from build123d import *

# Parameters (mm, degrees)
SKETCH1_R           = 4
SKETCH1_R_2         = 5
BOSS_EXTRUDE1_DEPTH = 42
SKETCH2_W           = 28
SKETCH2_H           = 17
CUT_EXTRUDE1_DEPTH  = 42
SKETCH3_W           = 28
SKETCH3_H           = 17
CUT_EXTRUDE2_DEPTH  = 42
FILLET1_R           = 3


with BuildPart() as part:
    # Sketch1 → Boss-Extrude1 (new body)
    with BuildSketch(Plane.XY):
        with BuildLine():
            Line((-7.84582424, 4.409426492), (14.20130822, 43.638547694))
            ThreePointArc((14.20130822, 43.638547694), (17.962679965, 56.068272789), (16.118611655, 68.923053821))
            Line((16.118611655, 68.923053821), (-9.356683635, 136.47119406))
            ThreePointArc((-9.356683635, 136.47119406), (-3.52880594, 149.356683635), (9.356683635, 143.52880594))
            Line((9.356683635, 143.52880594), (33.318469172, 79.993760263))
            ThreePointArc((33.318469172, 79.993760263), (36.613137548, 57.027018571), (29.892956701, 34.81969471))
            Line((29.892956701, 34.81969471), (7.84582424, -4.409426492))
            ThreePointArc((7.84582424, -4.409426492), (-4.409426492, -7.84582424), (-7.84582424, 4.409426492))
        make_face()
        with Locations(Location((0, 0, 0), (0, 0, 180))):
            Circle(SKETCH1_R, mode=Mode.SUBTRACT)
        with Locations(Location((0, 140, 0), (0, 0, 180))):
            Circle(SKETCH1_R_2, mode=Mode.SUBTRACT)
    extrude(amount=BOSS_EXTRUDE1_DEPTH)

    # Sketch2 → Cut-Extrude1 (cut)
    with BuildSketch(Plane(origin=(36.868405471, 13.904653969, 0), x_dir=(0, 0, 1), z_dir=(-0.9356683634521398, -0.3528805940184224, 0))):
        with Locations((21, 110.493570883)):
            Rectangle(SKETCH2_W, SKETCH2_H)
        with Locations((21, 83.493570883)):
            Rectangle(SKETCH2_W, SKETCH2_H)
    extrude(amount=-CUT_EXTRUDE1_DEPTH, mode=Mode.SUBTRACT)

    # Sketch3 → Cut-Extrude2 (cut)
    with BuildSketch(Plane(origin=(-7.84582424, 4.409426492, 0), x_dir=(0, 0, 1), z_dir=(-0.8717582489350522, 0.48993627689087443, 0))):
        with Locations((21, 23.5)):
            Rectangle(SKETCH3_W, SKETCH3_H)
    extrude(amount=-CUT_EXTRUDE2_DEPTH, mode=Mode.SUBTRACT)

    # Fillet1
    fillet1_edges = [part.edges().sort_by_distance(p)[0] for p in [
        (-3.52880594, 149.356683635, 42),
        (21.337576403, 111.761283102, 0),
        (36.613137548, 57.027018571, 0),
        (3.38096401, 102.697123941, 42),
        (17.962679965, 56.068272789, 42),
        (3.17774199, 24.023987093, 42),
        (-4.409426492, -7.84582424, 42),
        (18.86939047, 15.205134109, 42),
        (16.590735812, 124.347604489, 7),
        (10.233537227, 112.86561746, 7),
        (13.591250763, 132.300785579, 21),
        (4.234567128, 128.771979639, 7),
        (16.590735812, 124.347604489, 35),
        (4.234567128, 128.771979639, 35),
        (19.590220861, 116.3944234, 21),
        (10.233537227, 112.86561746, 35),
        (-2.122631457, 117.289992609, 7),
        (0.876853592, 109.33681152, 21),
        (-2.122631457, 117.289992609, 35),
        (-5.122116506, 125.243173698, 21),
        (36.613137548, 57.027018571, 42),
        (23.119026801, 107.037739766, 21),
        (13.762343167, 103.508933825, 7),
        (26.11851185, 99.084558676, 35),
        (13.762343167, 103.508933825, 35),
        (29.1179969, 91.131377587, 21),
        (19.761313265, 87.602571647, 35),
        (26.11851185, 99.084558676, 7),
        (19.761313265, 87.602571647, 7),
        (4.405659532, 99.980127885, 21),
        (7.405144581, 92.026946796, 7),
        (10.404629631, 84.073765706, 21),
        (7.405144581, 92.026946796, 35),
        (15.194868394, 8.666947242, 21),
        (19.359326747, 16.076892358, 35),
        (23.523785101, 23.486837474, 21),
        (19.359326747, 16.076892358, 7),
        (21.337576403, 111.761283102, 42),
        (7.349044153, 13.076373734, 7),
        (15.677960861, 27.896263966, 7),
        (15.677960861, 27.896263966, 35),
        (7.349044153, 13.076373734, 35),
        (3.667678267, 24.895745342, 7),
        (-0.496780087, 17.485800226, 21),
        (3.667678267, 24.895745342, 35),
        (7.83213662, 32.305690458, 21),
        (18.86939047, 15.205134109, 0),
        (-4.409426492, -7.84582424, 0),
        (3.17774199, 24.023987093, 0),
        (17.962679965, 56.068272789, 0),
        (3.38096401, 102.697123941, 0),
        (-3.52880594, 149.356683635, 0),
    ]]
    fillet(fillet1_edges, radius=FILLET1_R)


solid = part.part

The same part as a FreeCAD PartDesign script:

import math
import FreeCAD as App
import Part
import Sketcher

V = App.Vector
Q = App.Units.Quantity


def edges_at(feature, points):
    """Names of the edges that pass closest to the given points."""
    edges = feature.Shape.Edges
    near = lambda p: min(range(len(edges)), key=lambda i: edges[i].distToShape(Part.Vertex(*p))[0])
    return sorted({f"Edge{near(p) + 1}" for p in points})

doc = App.newDocument("Part")
body = doc.addObject("PartDesign::Body", "Body")

sketch1 = body.newObject("Sketcher::SketchObject", "Sketch")
sketch1.AttachmentSupport = (doc.getObject("XY_Plane"), [""])
sketch1.MapMode = "FlatFace"
sketch1.addGeometry([
    Part.LineSegment(V(14.2, 43.6, 0), V(-7.8, 4.4, 0)),
    Part.ArcOfCircle(Part.Circle(V(0, 0, 0), V(0, 0, 1), 9), math.radians(151), math.radians(331)),
    Part.LineSegment(V(7.8, -4.4, 0), V(29.9, 34.8, 0)),
    Part.ArcOfCircle(Part.Circle(V(-16.8, 61.1, 0), V(0, 0, 1), 53.6), math.radians(-29), math.radians(21)),
    Part.LineSegment(V(33.3, 80, 0), V(9.4, 143.5, 0)),
    Part.ArcOfCircle(Part.Circle(V(0, 140, 0), V(0, 0, 1), 10), math.radians(21), math.radians(201)),
    Part.LineSegment(V(-9.4, 136.5, 0), V(16.1, 68.9, 0)),
    Part.ArcOfCircle(Part.Circle(V(-12, 58.3, 0), V(0, 0, 1), 30), math.radians(-29), math.radians(21)),
    Part.Circle(V(0, 0, 0), V(0, 0, 1), 4),
    Part.Circle(V(0, 140, 0), V(0, 0, 1), 5),
], False)
sketch1.addConstraint([
    Sketcher.Constraint("Tangent", 0, 2, 1, 1),
    Sketcher.Constraint("Tangent", 1, 2, 2, 1),
    Sketcher.Constraint("Tangent", 2, 2, 3, 1),
    Sketcher.Constraint("Tangent", 3, 2, 4, 1),
    Sketcher.Constraint("Tangent", 4, 2, 5, 1),
    Sketcher.Constraint("Tangent", 5, 2, 6, 1),
    Sketcher.Constraint("Tangent", 6, 2, 7, 2),
    Sketcher.Constraint("Tangent", 7, 1, 0, 1),
    Sketcher.Constraint("Coincident", 1, 3, -1, 1),
    Sketcher.Constraint("Coincident", 8, 3, -1, 1),
    Sketcher.Constraint("Coincident", 9, 3, 5, 3),
    Sketcher.Constraint("PointOnObject", 5, 3, -2),
    Sketcher.Constraint("Parallel", 0, 2),
    Sketcher.Constraint("Parallel", 4, 6),
    Sketcher.Constraint("Equal", 0, 2),
    Sketcher.Constraint("Diameter", 8, Q("8 mm")),
    Sketcher.Constraint("Diameter", 9, Q("10 mm")),
    Sketcher.Constraint("Radius", 1, Q("9 mm")),
    Sketcher.Constraint("Radius", 5, Q("10 mm")),
    Sketcher.Constraint("Radius", 7, Q("30 mm")),
    Sketcher.Constraint("Distance", 0, Q("45 mm")),
    Sketcher.Constraint("DistanceY", -1, 1, 5, 3, Q("140 mm")),
    Sketcher.Constraint("Radius", 3, Q("53.59891 mm")),
])
pad1 = body.newObject("PartDesign::Pad", "Pad")
pad1.Profile = sketch1
pad1.Length = 42

sketch2 = body.newObject("Sketcher::SketchObject", "Sketch001")
sketch2.Placement = App.Placement(V(36.868405, 13.904654, 0), App.Rotation(V(0, 0, 1), V(-0.352880594, 0.935668363, 0), V(-0.935668363, -0.352880594, 0), "ZXY"))
sketch2.addGeometry([
    Part.LineSegment(V(7, 119, 0), V(7, 102, 0)),
    Part.LineSegment(V(7, 102, 0), V(35, 102, 0)),
    Part.LineSegment(V(35, 102, 0), V(35, 119, 0)),
    Part.LineSegment(V(35, 119, 0), V(7, 119, 0)),
    Part.LineSegment(V(7, 92, 0), V(7, 75, 0)),
    Part.LineSegment(V(7, 75, 0), V(35, 75, 0)),
    Part.LineSegment(V(35, 75, 0), V(35, 92, 0)),
    Part.LineSegment(V(35, 92, 0), V(7, 92, 0)),
], False)
sketch2.addConstraint([
    Sketcher.Constraint("Coincident", 0, 2, 1, 1),
    Sketcher.Constraint("Coincident", 1, 2, 2, 1),
    Sketcher.Constraint("Coincident", 2, 2, 3, 1),
    Sketcher.Constraint("Coincident", 3, 2, 0, 1),
    Sketcher.Constraint("Coincident", 4, 2, 5, 1),
    Sketcher.Constraint("Coincident", 5, 2, 6, 1),
    Sketcher.Constraint("Coincident", 6, 2, 7, 1),
    Sketcher.Constraint("Coincident", 7, 2, 4, 1),
    Sketcher.Constraint("Vertical", 0),
    Sketcher.Constraint("Horizontal", 1),
    Sketcher.Constraint("Vertical", 2),
    Sketcher.Constraint("Horizontal", 3),
    Sketcher.Constraint("Vertical", 4),
    Sketcher.Constraint("Horizontal", 5),
    Sketcher.Constraint("Vertical", 6),
    Sketcher.Constraint("Horizontal", 7),
    Sketcher.Constraint("Vertical", 3, 2, 4, 2),
    Sketcher.Constraint("Vertical", 2, 2, 5, 2),
    Sketcher.Constraint("Equal", 2, 4),
    Sketcher.Constraint("DistanceX", 1, 1, 1, 2, Q("28 mm")),
    Sketcher.Constraint("DistanceY", 0, 2, 0, 1, Q("17 mm")),
    Sketcher.Constraint("DistanceX", -1, 1, 0, 2, Q("7 mm")),
    Sketcher.Constraint("DistanceY", 4, 2, 0, 2, Q("27 mm")),
    Sketcher.Constraint("DistanceY", -1, 1, 0, 2, Q("101.993571 mm")),
])
pocket1 = body.newObject("PartDesign::Pocket", "Pocket")
pocket1.Profile = sketch2
pocket1.Length = 42

sketch3 = body.newObject("Sketcher::SketchObject", "Sketch002")
sketch3.Placement = App.Placement(V(-7.845824, 4.409426, 0), App.Rotation(V(0, 0, 1), V(0.489936277, 0.871758249, 0), V(-0.871758249, 0.489936277, 0), "ZXY"))
sketch3.addGeometry([
    Part.LineSegment(V(7, 32, 0), V(7, 15, 0)),
    Part.LineSegment(V(7, 15, 0), V(35, 15, 0)),
    Part.LineSegment(V(35, 15, 0), V(35, 32, 0)),
    Part.LineSegment(V(35, 32, 0), V(7, 32, 0)),
], False)
sketch3.addConstraint([
    Sketcher.Constraint("Coincident", 0, 2, 1, 1),
    Sketcher.Constraint("Coincident", 1, 2, 2, 1),
    Sketcher.Constraint("Coincident", 2, 2, 3, 1),
    Sketcher.Constraint("Coincident", 3, 2, 0, 1),
    Sketcher.Constraint("Vertical", 0),
    Sketcher.Constraint("Horizontal", 1),
    Sketcher.Constraint("Vertical", 2),
    Sketcher.Constraint("Horizontal", 3),
    Sketcher.Constraint("DistanceX", 1, 1, 1, 2, Q("28 mm")),
    Sketcher.Constraint("DistanceY", 0, 2, 0, 1, Q("17 mm")),
    Sketcher.Constraint("DistanceX", -1, 1, 0, 2, Q("7 mm")),
    Sketcher.Constraint("DistanceY", -1, 1, 0, 2, Q("15 mm")),
])
pocket2 = body.newObject("PartDesign::Pocket", "Pocket001")
pocket2.Profile = sketch3
pocket2.Length = 42
doc.recompute()

fillet = body.newObject("PartDesign::Fillet", "Fillet")
fillet.Base = (pocket2, edges_at(pocket2, [
    (-3.529, 149.357, 42),
    (21.338, 111.761, 0),
    (36.613, 57.027, 0),
    (3.381, 102.697, 42),
    (17.963, 56.068, 42),
    (3.178, 24.024, 42),
    (-4.409, -7.846, 42),
    (18.869, 15.205, 42),
    (16.591, 124.348, 7),
    (10.234, 112.866, 7),
    (13.591, 132.301, 21),
    (4.235, 128.772, 7),
    (16.591, 124.348, 35),
    (4.235, 128.772, 35),
    (19.59, 116.394, 21),
    (10.234, 112.866, 35),
    (-2.123, 117.29, 7),
    (0.877, 109.337, 21),
    (-2.123, 117.29, 35),
    (-5.122, 125.243, 21),
    (36.613, 57.027, 42),
    (23.119, 107.038, 21),
    (13.762, 103.509, 7),
    (26.119, 99.085, 35),
    (13.762, 103.509, 35),
    (29.118, 91.131, 21),
    (19.761, 87.603, 35),
    (26.119, 99.085, 7),
    (19.761, 87.603, 7),
    (4.406, 99.98, 21),
    (7.405, 92.027, 7),
    (10.405, 84.074, 21),
    (7.405, 92.027, 35),
    (15.195, 8.667, 21),
    (19.359, 16.077, 35),
    (23.524, 23.487, 21),
    (19.359, 16.077, 7),
    (21.338, 111.761, 42),
    (7.349, 13.076, 7),
    (15.678, 27.896, 7),
    (15.678, 27.896, 35),
    (7.349, 13.076, 35),
    (3.668, 24.896, 7),
    (-0.497, 17.486, 21),
    (3.668, 24.896, 35),
    (7.832, 32.306, 21),
    (18.869, 15.205, 0),
    (-4.409, -7.846, 0),
    (3.178, 24.024, 0),
    (17.963, 56.068, 0),
    (3.381, 102.697, 0),
    (-3.529, 149.357, 0),
]))
fillet.Radius = 3

doc.recompute()
